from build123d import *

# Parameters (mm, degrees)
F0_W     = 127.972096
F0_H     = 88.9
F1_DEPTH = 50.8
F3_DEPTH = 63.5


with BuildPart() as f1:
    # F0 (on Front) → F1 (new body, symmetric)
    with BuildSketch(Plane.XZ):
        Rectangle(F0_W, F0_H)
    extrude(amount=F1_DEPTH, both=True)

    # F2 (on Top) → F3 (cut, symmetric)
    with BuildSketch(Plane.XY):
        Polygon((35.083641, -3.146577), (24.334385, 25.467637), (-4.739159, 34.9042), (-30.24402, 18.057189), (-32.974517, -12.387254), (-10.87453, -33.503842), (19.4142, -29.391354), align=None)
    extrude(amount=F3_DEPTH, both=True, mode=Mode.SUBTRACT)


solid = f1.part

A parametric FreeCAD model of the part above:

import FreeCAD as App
import Part
import Sketcher
from FreeCAD import Vector
Q = App.Units.Quantity

doc = App.newDocument("Part")
body = doc.addObject("PartDesign::Body", "Body")

# Sketch on XZ plane
sketch1 = body.newObject("Sketcher::SketchObject", "Sketch")
sketch1.AttachmentSupport = (doc.getObject("XZ_Plane"), [""])
sketch1.MapMode = "FlatFace"
sketch1.addGeometry([
    Part.LineSegment(Vector(-64, 44, 0), Vector(-64, -44, 0)),
    Part.LineSegment(Vector(-64, -44, 0), Vector(64, -44, 0)),
    Part.LineSegment(Vector(64, -44, 0), Vector(64, 44, 0)),
    Part.LineSegment(Vector(64, 44, 0), Vector(-64, 44, 0)),
], False)
sketch1.addConstraint([
    Sketcher.Constraint("Coincident", 0, 2, 1, 1),
    Sketcher.Constraint("Coincident", 1, 2, 2, 1),
    Sketcher.Constraint("Coincident", 2, 2, 3, 1),
    Sketcher.Constraint("Coincident", 3, 2, 0, 1),
    Sketcher.Constraint("Vertical", 0),
    Sketcher.Constraint("Horizontal", 1),
    Sketcher.Constraint("Vertical", 2),
    Sketcher.Constraint("Horizontal", 3),
    Sketcher.Constraint("Symmetric", 0, 2, 2, 2, -1, 1),
    Sketcher.Constraint("DistanceY", 0, 2, 0, 1, Q("3.5 in")),
    Sketcher.Constraint("DistanceX", 1, 1, 1, 2, Q("127.972096 mm")),
])
pad1 = body.newObject("PartDesign::Pad", "Pad")
pad1.Profile = sketch1
pad1.Length = Q("4 in")
pad1.Midplane = True

# Sketch on XY plane
sketch2 = body.newObject("Sketcher::SketchObject", "Sketch001")
sketch2.AttachmentSupport = (doc.getObject("XY_Plane"), [""])
sketch2.MapMode = "FlatFace"
sketch2.addGeometry([
    Part.LineSegment(Vector(35, -3, 0), Vector(24, 25, 0)),  # 0
    Part.LineSegment(Vector(24, 25, 0), Vector(-5, 35, 0)),  # 1
    Part.LineSegment(Vector(-5, 35, 0), Vector(-30, 18, 0)),  # 2
    Part.LineSegment(Vector(-30, 18, 0), Vector(-33, -12, 0)),  # 3
    Part.LineSegment(Vector(-33, -12, 0), Vector(-11, -34, 0)),  # 4
    Part.LineSegment(Vector(-11, -34, 0), Vector(19, -29, 0)),  # 5
    Part.LineSegment(Vector(19, -29, 0), Vector(35, -3, 0)),  # 6
], False)
sketch2.addConstraint([
    Sketcher.Constraint("Coincident", 0, 2, 1, 1),
    Sketcher.Constraint("Coincident", 1, 2, 2, 1),
    Sketcher.Constraint("Coincident", 2, 2, 3, 1),
    Sketcher.Constraint("Coincident", 3, 2, 4, 1),
    Sketcher.Constraint("Coincident", 4, 2, 5, 1),
    Sketcher.Constraint("Coincident", 5, 2, 6, 1),
    Sketcher.Constraint("Coincident", 6, 2, 0, 1),
    Sketcher.Constraint("Equal", 0, 1),
    Sketcher.Constraint("Equal", 1, 2),
    Sketcher.Constraint("Equal", 2, 3),
    Sketcher.Constraint("Equal", 3, 4),
    Sketcher.Constraint("Equal", 4, 5),
    Sketcher.Constraint("Equal", 5, 6),
    Sketcher.Constraint("DistanceX", 3, 2, 2, 2, Q("0.1074999 in")),
    Sketcher.Constraint("DistanceY", 3, 2, 2, 2, Q("1.1986001 in")),
    Sketcher.Constraint("DistanceY", -1, 1, 1, 2, Q("34.9042 mm")),
    Sketcher.Constraint("DistanceX", -1, 1, 5, 2, Q("19.4142 mm")),
    Sketcher.Constraint("DistanceY", 5, 2, 3, 2, Q("17.0041 mm")),
    Sketcher.Constraint("DistanceX", 1, 2, 6, 2, Q("39.8228 mm")),
    Sketcher.Constraint("DistanceX", 1, 2, -1, 1, Q("4.739159 mm")),
    Sketcher.Constraint("DistanceX", 2, 2, -1, 1, Q("30.24402 mm")),
])
pocket1 = body.newObject("PartDesign::Pocket", "Pocket")
pocket1.Profile = sketch2
pocket1.Length = Q("5 in")
pocket1.Midplane = True

doc.recompute()
